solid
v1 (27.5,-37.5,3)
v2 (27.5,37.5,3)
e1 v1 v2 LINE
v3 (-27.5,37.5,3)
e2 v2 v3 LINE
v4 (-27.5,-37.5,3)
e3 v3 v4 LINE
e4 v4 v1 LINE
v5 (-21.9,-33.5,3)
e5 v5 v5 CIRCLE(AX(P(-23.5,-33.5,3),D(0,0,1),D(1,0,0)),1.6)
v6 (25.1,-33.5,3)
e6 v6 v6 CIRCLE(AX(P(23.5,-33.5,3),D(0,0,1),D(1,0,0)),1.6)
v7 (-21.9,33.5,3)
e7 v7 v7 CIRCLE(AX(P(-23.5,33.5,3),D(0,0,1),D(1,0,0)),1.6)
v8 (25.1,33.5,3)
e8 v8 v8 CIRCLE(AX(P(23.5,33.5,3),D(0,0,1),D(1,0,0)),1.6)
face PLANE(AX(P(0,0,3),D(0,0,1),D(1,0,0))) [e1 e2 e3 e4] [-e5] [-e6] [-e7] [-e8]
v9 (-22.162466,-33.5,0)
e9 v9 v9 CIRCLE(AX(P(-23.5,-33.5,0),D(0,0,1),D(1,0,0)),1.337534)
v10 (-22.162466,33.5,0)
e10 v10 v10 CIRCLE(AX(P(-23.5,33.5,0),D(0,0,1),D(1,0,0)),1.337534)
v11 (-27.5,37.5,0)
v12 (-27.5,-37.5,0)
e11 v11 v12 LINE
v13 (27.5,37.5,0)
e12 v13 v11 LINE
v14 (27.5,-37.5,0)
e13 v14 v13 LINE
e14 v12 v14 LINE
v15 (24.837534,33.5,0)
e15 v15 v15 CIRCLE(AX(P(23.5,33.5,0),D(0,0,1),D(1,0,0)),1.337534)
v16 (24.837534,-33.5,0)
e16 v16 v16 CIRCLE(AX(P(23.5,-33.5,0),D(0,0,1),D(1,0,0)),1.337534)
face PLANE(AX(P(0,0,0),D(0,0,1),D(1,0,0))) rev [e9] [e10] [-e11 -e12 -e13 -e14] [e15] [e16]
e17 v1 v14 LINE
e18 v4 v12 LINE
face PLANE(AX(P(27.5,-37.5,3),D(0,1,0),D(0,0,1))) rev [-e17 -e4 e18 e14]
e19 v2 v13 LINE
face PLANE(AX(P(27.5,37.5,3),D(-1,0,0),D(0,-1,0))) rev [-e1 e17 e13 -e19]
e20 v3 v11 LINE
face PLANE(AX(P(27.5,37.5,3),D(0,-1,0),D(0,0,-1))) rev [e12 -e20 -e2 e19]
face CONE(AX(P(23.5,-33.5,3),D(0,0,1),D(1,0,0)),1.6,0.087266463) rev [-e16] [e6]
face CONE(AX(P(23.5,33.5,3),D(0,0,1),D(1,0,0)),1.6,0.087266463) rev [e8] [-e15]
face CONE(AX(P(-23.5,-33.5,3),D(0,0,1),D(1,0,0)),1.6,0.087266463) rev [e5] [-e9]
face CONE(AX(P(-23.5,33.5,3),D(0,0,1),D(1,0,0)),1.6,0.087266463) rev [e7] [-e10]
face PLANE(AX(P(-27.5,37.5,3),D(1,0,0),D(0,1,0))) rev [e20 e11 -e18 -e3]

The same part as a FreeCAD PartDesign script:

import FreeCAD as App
import Part
import Sketcher
Q = App.Units.Quantity

doc = App.newDocument("Part")
body = doc.addObject("PartDesign::Body", "Body")

# Sketch on XY plane
sketch1 = body.newObject("Sketcher::SketchObject", "Sketch")
sketch1.AttachmentSupport = (doc.getObject("XY_Plane"), [""])
sketch1.MapMode = "FlatFace"
sketch1.addGeometry([
    Part.LineSegment(App.Vector(-27.5, -37.5, 0), App.Vector(27.5, -37.5, 0)),
    Part.LineSegment(App.Vector(27.5, -37.5, 0), App.Vector(27.5, 37.5, 0)),
    Part.LineSegment(App.Vector(27.5, 37.5, 0), App.Vector(-27.5, 37.5, 0)),
    Part.LineSegment(App.Vector(-27.5, 37.5, 0), App.Vector(-27.5, -37.5, 0)),
], False)
sketch1.addConstraint([
    Sketcher.Constraint("Coincident", 0, 2, 1, 1),
    Sketcher.Constraint("Coincident", 1, 2, 2, 1),
    Sketcher.Constraint("Coincident", 2, 2, 3, 1),
    Sketcher.Constraint("Coincident", 3, 2, 0, 1),
    Sketcher.Constraint("Horizontal", 0),
    Sketcher.Constraint("Vertical", 1),
    Sketcher.Constraint("Horizontal", 2),
    Sketcher.Constraint("Vertical", 3),
    Sketcher.Constraint("Symmetric", 0, 2, 2, 2, -1, 1),
    Sketcher.Constraint("DistanceX", 0, 1, 0, 2, Q("55 mm")),
    Sketcher.Constraint("DistanceY", 1, 1, 1, 2, Q("75 mm")),
])
pad1 = body.newObject("PartDesign::Pad", "Pad")
pad1.Profile = sketch1
pad1.Length = 3

# Sketch on YZ plane
sketch2 = body.newObject("Sketcher::SketchObject", "Sketch001")
sketch2.AttachmentSupport = (doc.getObject("YZ_Plane"), [""])
sketch2.MapMode = "FlatFace"
sketch2.AttachmentOffset = App.Placement(App.Vector(0, 0, -23.5), App.Rotation())
sketch2.addGeometry([
    Part.LineSegment(App.Vector(33.5, 3, 0), App.Vector(31.9, 3, 0)),
    Part.LineSegment(App.Vector(31.9, 3, 0), App.Vector(33.5, -15.288084, 0)),
    Part.LineSegment(App.Vector(33.5, -15.288084, 0), App.Vector(33.5, 3, 0)),
], False)
sketch2.addGeometry(Part.LineSegment(App.Vector(33.5, 3, 0), App.Vector(33.5, -15.288084, 0)), True)  # axis
sketch2.addConstraint([
    Sketcher.Constraint("Coincident", 0, 2, 1, 1),
    Sketcher.Constraint("Coincident", 1, 2, 2, 1),
    Sketcher.Constraint("Coincident", 2, 2, 0, 1),
    Sketcher.Constraint("Horizontal", 0),
    Sketcher.Constraint("Vertical", 2),
    Sketcher.Constraint("Vertical", 3),
    Sketcher.Constraint("Coincident", 3, 1, 2, 2),
    Sketcher.Constraint("Equal", 2, 3),
    Sketcher.Constraint("Angle", 1, Q("-85 deg")),
    Sketcher.Constraint("DistanceX", 0, 2, 0, 1, Q("1.6 mm")),
    Sketcher.Constraint("DistanceY", -1, 1, 0, 2, Q("3 mm")),
    Sketcher.Constraint("DistanceX", -1, 1, 0, 2, Q("31.9 mm")),
])
groove = body.newObject("PartDesign::Groove", "Groove")
groove.Profile = sketch2
groove.ReferenceAxis = (sketch2, ["Axis0"])
groove.Angle = 360

# Sketch on YZ plane
sketch3 = body.newObject("Sketcher::SketchObject", "Sketch002")
sketch3.AttachmentSupport = (doc.getObject("YZ_Plane"), [""])
sketch3.MapMode = "FlatFace"
sketch3.AttachmentOffset = App.Placement(App.Vector(0, 0, 23.5), App.Rotation())
sketch3.addGeometry([
    Part.LineSegment(App.Vector(33.5, 3, 0), App.Vector(31.9, 3, 0)),
    Part.LineSegment(App.Vector(31.9, 3, 0), App.Vector(33.5, -15.288084, 0)),
    Part.LineSegment(App.Vector(33.5, -15.288084, 0), App.Vector(33.5, 3, 0)),
], False)
sketch3.addGeometry(Part.LineSegment(App.Vector(33.5, 3, 0), App.Vector(33.5, -15.288084, 0)), True)  # axis
sketch3.addConstraint([
    Sketcher.Constraint("Coincident", 0, 2, 1, 1),
    Sketcher.Constraint("Coincident", 1, 2, 2, 1),
    Sketcher.Constraint("Coincident", 2, 2, 0, 1),
    Sketcher.Constraint("Horizontal", 0),
    Sketcher.Constraint("Vertical", 2),
    Sketcher.Constraint("Vertical", 3),
    Sketcher.Constraint("Coincident", 3, 1, 2, 2),
    Sketcher.Constraint("Equal", 2, 3),
    Sketcher.Constraint("Angle", 1, Q("-85 deg")),
    Sketcher.Constraint("DistanceX", 0, 2, 0, 1, Q("1.6 mm")),
    Sketcher.Constraint("DistanceY", -1, 1, 0, 2, Q("3 mm")),
    Sketcher.Constraint("DistanceX", -1, 1, 0, 2, Q("31.9 mm")),
])
groove2 = body.newObject("PartDesign::Groove", "Groove001")
groove2.Profile = sketch3
groove2.ReferenceAxis = (sketch3, ["Axis0"])
groove2.Angle = 360

# Sketch on YZ plane
sketch4 = body.newObject("Sketcher::SketchObject", "Sketch003")
sketch4.AttachmentSupport = (doc.getObject("YZ_Plane"), [""])
sketch4.MapMode = "FlatFace"
sketch4.AttachmentOffset = App.Placement(App.Vector(0, 0, -23.5), App.Rotation())
sketch4.addGeometry([
    Part.LineSegment(App.Vector(-33.5, 3, 0), App.Vector(-35.1, 3, 0)),
    Part.LineSegment(App.Vector(-35.1, 3, 0), App.Vector(-33.5, -15.288084, 0)),
    Part.LineSegment(App.Vector(-33.5, -15.288084, 0), App.Vector(-33.5, 3, 0)),
], False)
sketch4.addGeometry(Part.LineSegment(App.Vector(-33.5, 3, 0), App.Vector(-33.5, -15.288084, 0)), True)  # axis
sketch4.addConstraint([
    Sketcher.Constraint("Coincident", 0, 2, 1, 1),
    Sketcher.Constraint("Coincident", 1, 2, 2, 1),
    Sketcher.Constraint("Coincident", 2, 2, 0, 1),
    Sketcher.Constraint("Horizontal", 0),
    Sketcher.Constraint("Vertical", 2),
    Sketcher.Constraint("Vertical", 3),
    Sketcher.Constraint("Coincident", 3, 1, 2, 2),
    Sketcher.Constraint("Equal", 2, 3),
    Sketcher.Constraint("Angle", 1, Q("-85 deg")),
    Sketcher.Constraint("DistanceX", 0, 2, 0, 1, Q("1.6 mm")),
    Sketcher.Constraint("DistanceY", -1, 1, 0, 2, Q("3 mm")),
    Sketcher.Constraint("DistanceX", 0, 2, -1, 1, Q("35.1 mm")),
])
groove3 = body.newObject("PartDesign::Groove", "Groove002")
groove3.Profile = sketch4
groove3.ReferenceAxis = (sketch4, ["Axis0"])
groove3.Angle = 360

# Sketch on YZ plane
sketch5 = body.newObject("Sketcher::SketchObject", "Sketch004")
sketch5.AttachmentSupport = (doc.getObject("YZ_Plane"), [""])
sketch5.MapMode = "FlatFace"
sketch5.AttachmentOffset = App.Placement(App.Vector(0, 0, 23.5), App.Rotation())
sketch5.addGeometry([
    Part.LineSegment(App.Vector(-33.5, 3, 0), App.Vector(-35.1, 3, 0)),
    Part.LineSegment(App.Vector(-35.1, 3, 0), App.Vector(-33.5, -15.288084, 0)),
    Part.LineSegment(App.Vector(-33.5, -15.288084, 0), App.Vector(-33.5, 3, 0)),
], False)
sketch5.addGeometry(Part.LineSegment(App.Vector(-33.5, 3, 0), App.Vector(-33.5, -15.288084, 0)), True)  # axis
sketch5.addConstraint([
    Sketcher.Constraint("Coincident", 0, 2, 1, 1),
    Sketcher.Constraint("Coincident", 1, 2, 2, 1),
    Sketcher.Constraint("Coincident", 2, 2, 0, 1),
    Sketcher.Constraint("Horizontal", 0),
    Sketcher.Constraint("Vertical", 2),
    Sketcher.Constraint("Vertical", 3),
    Sketcher.Constraint("Coincident", 3, 1, 2, 2),
    Sketcher.Constraint("Equal", 2, 3),
    Sketcher.Constraint("Angle", 1, Q("-85 deg")),
    Sketcher.Constraint("DistanceX", 0, 2, 0, 1, Q("1.6 mm")),
    Sketcher.Constraint("DistanceY", -1, 1, 0, 2, Q("3 mm")),
    Sketcher.Constraint("DistanceX", 0, 2, -1, 1, Q("35.1 mm")),
])
groove4 = body.newObject("PartDesign::Groove", "Groove003")
groove4.Profile = sketch5
groove4.ReferenceAxis = (sketch5, ["Axis0"])
groove4.Angle = 360

doc.recompute()
